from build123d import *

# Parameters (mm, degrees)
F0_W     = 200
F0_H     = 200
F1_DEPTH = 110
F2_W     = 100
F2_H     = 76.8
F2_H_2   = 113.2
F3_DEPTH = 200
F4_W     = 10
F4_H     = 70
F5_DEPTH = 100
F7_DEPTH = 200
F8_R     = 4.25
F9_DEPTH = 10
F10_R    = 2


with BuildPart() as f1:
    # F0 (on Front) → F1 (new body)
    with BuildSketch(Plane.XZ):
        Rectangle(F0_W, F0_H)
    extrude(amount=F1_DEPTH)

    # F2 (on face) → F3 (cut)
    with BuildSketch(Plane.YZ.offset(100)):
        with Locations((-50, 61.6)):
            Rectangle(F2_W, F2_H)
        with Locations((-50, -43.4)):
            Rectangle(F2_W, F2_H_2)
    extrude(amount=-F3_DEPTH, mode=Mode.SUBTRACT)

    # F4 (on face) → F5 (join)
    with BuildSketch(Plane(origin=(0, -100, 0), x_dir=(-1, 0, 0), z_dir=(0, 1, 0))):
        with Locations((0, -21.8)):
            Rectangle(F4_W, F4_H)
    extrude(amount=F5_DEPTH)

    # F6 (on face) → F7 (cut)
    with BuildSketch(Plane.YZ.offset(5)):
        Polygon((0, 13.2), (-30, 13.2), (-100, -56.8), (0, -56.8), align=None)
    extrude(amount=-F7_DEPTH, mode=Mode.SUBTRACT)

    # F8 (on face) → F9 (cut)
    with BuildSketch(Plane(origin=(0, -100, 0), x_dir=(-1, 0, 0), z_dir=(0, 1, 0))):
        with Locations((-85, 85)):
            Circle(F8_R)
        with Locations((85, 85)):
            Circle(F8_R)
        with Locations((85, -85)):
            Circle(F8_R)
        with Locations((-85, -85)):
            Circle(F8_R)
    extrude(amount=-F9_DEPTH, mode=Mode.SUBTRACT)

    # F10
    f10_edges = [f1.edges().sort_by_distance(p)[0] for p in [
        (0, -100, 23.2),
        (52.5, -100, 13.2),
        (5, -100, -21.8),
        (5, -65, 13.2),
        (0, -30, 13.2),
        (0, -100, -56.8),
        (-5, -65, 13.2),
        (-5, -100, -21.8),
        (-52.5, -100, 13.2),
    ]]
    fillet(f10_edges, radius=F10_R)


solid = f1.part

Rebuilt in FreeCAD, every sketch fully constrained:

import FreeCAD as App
import Part
import Sketcher
Q = App.Units.Quantity


def edges_at(feature, points):
    """Names of the edges that pass closest to the given points."""
    edges = feature.Shape.Edges
    near = lambda p: min(range(len(edges)), key=lambda i: edges[i].distToShape(Part.Vertex(*p))[0])
    return sorted({f"Edge{near(p) + 1}" for p in points})

doc = App.newDocument("Part")
body = doc.addObject("PartDesign::Body", "Body")

# Sketch on XZ plane
sketch1 = body.newObject("Sketcher::SketchObject", "Sketch")
sketch1.AttachmentSupport = (doc.getObject("XZ_Plane"), [""])
sketch1.MapMode = "FlatFace"
sketch1.addGeometry(Part.LineSegment(App.Vector(-100, 100, 0), App.Vector(-100, -100, 0)), False)
sketch1.addGeometry(Part.LineSegment(App.Vector(-100, -100, 0), App.Vector(100, -100, 0)), False)
sketch1.addGeometry(Part.LineSegment(App.Vector(100, -100, 0), App.Vector(100, 100, 0)), False)
sketch1.addGeometry(Part.LineSegment(App.Vector(100, 100, 0), App.Vector(-100, 100, 0)), False)
sketch1.addConstraint(Sketcher.Constraint("Coincident", 0, 2, 1, 1))
sketch1.addConstraint(Sketcher.Constraint("Coincident", 1, 2, 2, 1))
sketch1.addConstraint(Sketcher.Constraint("Coincident", 2, 2, 3, 1))
sketch1.addConstraint(Sketcher.Constraint("Coincident", 3, 2, 0, 1))
sketch1.addConstraint(Sketcher.Constraint("Vertical", 0))
sketch1.addConstraint(Sketcher.Constraint("Horizontal", 1))
sketch1.addConstraint(Sketcher.Constraint("Vertical", 2))
sketch1.addConstraint(Sketcher.Constraint("Horizontal", 3))
sketch1.addConstraint(Sketcher.Constraint("Symmetric", 0, 2, 2, 2, -1, 1))
sketch1.addConstraint(Sketcher.Constraint("Equal", 3, 0))
sketch1.addConstraint(Sketcher.Constraint("DistanceX", 1, 1, 1, 2, Q("200 mm")))
pad1 = body.newObject("PartDesign::Pad", "Pad")
pad1.Profile = sketch1
pad1.Length = 110

# Sketch on YZ plane
sketch2 = body.newObject("Sketcher::SketchObject", "Sketch001")
sketch2.AttachmentSupport = (doc.getObject("YZ_Plane"), [""])
sketch2.MapMode = "FlatFace"
sketch2.AttachmentOffset = App.Placement(App.Vector(0, 0, 100), App.Rotation())
sketch2.addGeometry(Part.LineSegment(App.Vector(-100, 100, 0), App.Vector(-100, 23, 0)), False)
sketch2.addGeometry(Part.LineSegment(App.Vector(-100, 23, 0), App.Vector(0, 23, 0)), False)
sketch2.addGeometry(Part.LineSegment(App.Vector(0, 23, 0), App.Vector(0, 100, 0)), False)
sketch2.addGeometry(Part.LineSegment(App.Vector(0, 100, 0), App.Vector(-100, 100, 0)), False)
sketch2.addGeometry(Part.LineSegment(App.Vector(-100, 13, 0), App.Vector(-100, -100, 0)), False)
sketch2.addGeometry(Part.LineSegment(App.Vector(-100, -100, 0), App.Vector(0, -100, 0)), False)
sketch2.addGeometry(Part.LineSegment(App.Vector(0, -100, 0), App.Vector(0, 13, 0)), False)
sketch2.addGeometry(Part.LineSegment(App.Vector(0, 13, 0), App.Vector(-100, 13, 0)), False)
sketch2.addConstraint(Sketcher.Constraint("Coincident", 0, 2, 1, 1))
sketch2.addConstraint(Sketcher.Constraint("Coincident", 1, 2, 2, 1))
sketch2.addConstraint(Sketcher.Constraint("Coincident", 2, 2, 3, 1))
sketch2.addConstraint(Sketcher.Constraint("Coincident", 3, 2, 0, 1))
sketch2.addConstraint(Sketcher.Constraint("Coincident", 4, 2, 5, 1))
sketch2.addConstraint(Sketcher.Constraint("Coincident", 5, 2, 6, 1))
sketch2.addConstraint(Sketcher.Constraint("Coincident", 6, 2, 7, 1))
sketch2.addConstraint(Sketcher.Constraint("Coincident", 7, 2, 4, 1))
sketch2.addConstraint(Sketcher.Constraint("Vertical", 0))
sketch2.addConstraint(Sketcher.Constraint("Horizontal", 1))
sketch2.addConstraint(Sketcher.Constraint("Vertical", 2))
sketch2.addConstraint(Sketcher.Constraint("Horizontal", 3))
sketch2.addConstraint(Sketcher.Constraint("Vertical", 4))
sketch2.addConstraint(Sketcher.Constraint("Horizontal", 5))
sketch2.addConstraint(Sketcher.Constraint("Vertical", 6))
sketch2.addConstraint(Sketcher.Constraint("Horizontal", 7))
sketch2.addConstraint(Sketcher.Constraint("Symmetric", 2, 2, 5, 2, -1, 1))
sketch2.addConstraint(Sketcher.Constraint("PointOnObject", 1, 2, -2))
sketch2.addConstraint(Sketcher.Constraint("Vertical", 3, 2, 4, 2))
sketch2.addConstraint(Sketcher.Constraint("DistanceX", 1, 1, 1, 2, Q("100 mm")))
sketch2.addConstraint(Sketcher.Constraint("DistanceY", 0, 2, 0, 1, Q("76.8 mm")))
sketch2.addConstraint(Sketcher.Constraint("DistanceY", 4, 2, 4, 1, Q("113.2 mm")))
sketch2.addConstraint(Sketcher.Constraint("DistanceY", -1, 1, 2, 2, Q("100 mm")))
pocket1 = body.newObject("PartDesign::Pocket", "Pocket")
pocket1.Profile = sketch2
pocket1.Length = 200

# Sketch on XZ plane
sketch3 = body.newObject("Sketcher::SketchObject", "Sketch002")
sketch3.AttachmentSupport = (doc.getObject("XZ_Plane"), [""])
sketch3.MapMode = "FlatFace"
sketch3.AttachmentOffset = App.Placement(App.Vector(0, 0, 100), App.Rotation())
sketch3.addGeometry(Part.LineSegment(App.Vector(5, 13, 0), App.Vector(5, -57, 0)), False)
sketch3.addGeometry(Part.LineSegment(App.Vector(5, -57, 0), App.Vector(-5, -57, 0)), False)
sketch3.addGeometry(Part.LineSegment(App.Vector(-5, -57, 0), App.Vector(-5, 13, 0)), False)
sketch3.addGeometry(Part.LineSegment(App.Vector(-5, 13, 0), App.Vector(5, 13, 0)), False)
sketch3.addConstraint(Sketcher.Constraint("Coincident", 0, 2, 1, 1))
sketch3.addConstraint(Sketcher.Constraint("Coincident", 1, 2, 2, 1))
sketch3.addConstraint(Sketcher.Constraint("Coincident", 2, 2, 3, 1))
sketch3.addConstraint(Sketcher.Constraint("Coincident", 3, 2, 0, 1))
sketch3.addConstraint(Sketcher.Constraint("Vertical", 0))
sketch3.addConstraint(Sketcher.Constraint("Horizontal", 1))
sketch3.addConstraint(Sketcher.Constraint("Vertical", 2))
sketch3.addConstraint(Sketcher.Constraint("Horizontal", 3))
sketch3.addConstraint(Sketcher.Constraint("DistanceX", 1, 2, 1, 1, Q("10 mm")))
sketch3.addConstraint(Sketcher.Constraint("DistanceY", 0, 2, 0, 1, Q("70 mm")))
sketch3.addConstraint(Sketcher.Constraint("DistanceX", -1, 1, 0, 2, Q("5 mm")))
sketch3.addConstraint(Sketcher.Constraint("DistanceY", 0, 2, -1, 1, Q("56.8 mm")))
pad2 = body.newObject("PartDesign::Pad", "Pad001")
pad2.Profile = sketch3
pad2.Length = 100
pad2.Reversed = True

# Sketch on YZ plane
sketch4 = body.newObject("Sketcher::SketchObject", "Sketch003")
sketch4.AttachmentSupport = (doc.getObject("YZ_Plane"), [""])
sketch4.MapMode = "FlatFace"
sketch4.AttachmentOffset = App.Placement(App.Vector(0, 0, 5), App.Rotation())
sketch4.addGeometry(Part.LineSegment(App.Vector(0, 13, 0), App.Vector(-30, 13, 0)), False)
sketch4.addGeometry(Part.LineSegment(App.Vector(-30, 13, 0), App.Vector(-100, -57, 0)), False)
sketch4.addGeometry(Part.LineSegment(App.Vector(-100, -57, 0), App.Vector(0, -57, 0)), False)
sketch4.addGeometry(Part.LineSegment(App.Vector(0, -57, 0), App.Vector(0, 13, 0)), False)
sketch4.addConstraint(Sketcher.Constraint("Coincident", 0, 2, 1, 1))
sketch4.addConstraint(Sketcher.Constraint("Coincident", 1, 2, 2, 1))
sketch4.addConstraint(Sketcher.Constraint("Coincident", 2, 2, 3, 1))
sketch4.addConstraint(Sketcher.Constraint("Coincident", 3, 2, 0, 1))
sketch4.addConstraint(Sketcher.Constraint("Horizontal", 0))
sketch4.addConstraint(Sketcher.Constraint("Horizontal", 2))
sketch4.addConstraint(Sketcher.Constraint("Vertical", 3))
sketch4.addConstraint(Sketcher.Constraint("PointOnObject", 2, 2, -2))
sketch4.addConstraint(Sketcher.Constraint("DistanceX", 0, 2, 0, 1, Q("30 mm")))
sketch4.addConstraint(Sketcher.Constraint("DistanceX", 2, 1, 2, 2, Q("100 mm")))
sketch4.addConstraint(Sketcher.Constraint("DistanceY", 3, 1, 3, 2, Q("70 mm")))
sketch4.addConstraint(Sketcher.Constraint("DistanceY", -1, 1, 0, 2, Q("13.2 mm")))
pocket2 = body.newObject("PartDesign::Pocket", "Pocket001")
pocket2.Profile = sketch4
pocket2.Length = 200

# Sketch on XZ plane
sketch5 = body.newObject("Sketcher::SketchObject", "Sketch004")
sketch5.AttachmentSupport = (doc.getObject("XZ_Plane"), [""])
sketch5.MapMode = "FlatFace"
sketch5.AttachmentOffset = App.Placement(App.Vector(0, 0, 100), App.Rotation())
sketch5.addGeometry(Part.Circle(App.Vector(85, 85, 0), App.Vector(0, 0, 1), 4.2), False)
sketch5.addGeometry(Part.Circle(App.Vector(-85, 85, 0), App.Vector(0, 0, 1), 4.2), False)
sketch5.addGeometry(Part.Circle(App.Vector(-85, -85, 0), App.Vector(0, 0, 1), 4.2), False)
sketch5.addGeometry(Part.Circle(App.Vector(85, -85, 0), App.Vector(0, 0, 1), 4.2), False)
sketch5.addConstraint(Sketcher.Constraint("Equal", 0, 1))
sketch5.addConstraint(Sketcher.Constraint("Equal", 1, 2))
sketch5.addConstraint(Sketcher.Constraint("Equal", 2, 3))
sketch5.addConstraint(Sketcher.Constraint("Symmetric", 0, 3, 2, 3, -1, 1))
sketch5.addConstraint(Sketcher.Constraint("Symmetric", 1, 3, 3, 3, -1, 1))
sketch5.addConstraint(Sketcher.Constraint("Symmetric", 0, 3, 1, 3, -2))
sketch5.addConstraint(Sketcher.Constraint("Diameter", 0, Q("8.5 mm")))
sketch5.addConstraint(Sketcher.Constraint("DistanceX", -1, 1, 0, 3, Q("85 mm")))
sketch5.addConstraint(Sketcher.Constraint("DistanceY", -1, 1, 0, 3, Q("85 mm")))
pocket3 = body.newObject("PartDesign::Pocket", "Pocket002")
pocket3.Profile = sketch5
pocket3.Length = 10
pocket3.Reversed = True
doc.recompute()

fillet = body.newObject("PartDesign::Fillet", "Fillet")
fillet.Base = (pocket3, edges_at(pocket3, [
    (0, -100, 23.2),
    (52.5, -100, 13.2),
    (5, -100, -21.8),
    (5, -65, 13.2),
    (0, -30, 13.2),
    (0, -100, -56.8),
    (-5, -65, 13.2),
    (-5, -100, -21.8),
    (-52.5, -100, 13.2),
]))
fillet.Radius = 2

doc.recompute()
